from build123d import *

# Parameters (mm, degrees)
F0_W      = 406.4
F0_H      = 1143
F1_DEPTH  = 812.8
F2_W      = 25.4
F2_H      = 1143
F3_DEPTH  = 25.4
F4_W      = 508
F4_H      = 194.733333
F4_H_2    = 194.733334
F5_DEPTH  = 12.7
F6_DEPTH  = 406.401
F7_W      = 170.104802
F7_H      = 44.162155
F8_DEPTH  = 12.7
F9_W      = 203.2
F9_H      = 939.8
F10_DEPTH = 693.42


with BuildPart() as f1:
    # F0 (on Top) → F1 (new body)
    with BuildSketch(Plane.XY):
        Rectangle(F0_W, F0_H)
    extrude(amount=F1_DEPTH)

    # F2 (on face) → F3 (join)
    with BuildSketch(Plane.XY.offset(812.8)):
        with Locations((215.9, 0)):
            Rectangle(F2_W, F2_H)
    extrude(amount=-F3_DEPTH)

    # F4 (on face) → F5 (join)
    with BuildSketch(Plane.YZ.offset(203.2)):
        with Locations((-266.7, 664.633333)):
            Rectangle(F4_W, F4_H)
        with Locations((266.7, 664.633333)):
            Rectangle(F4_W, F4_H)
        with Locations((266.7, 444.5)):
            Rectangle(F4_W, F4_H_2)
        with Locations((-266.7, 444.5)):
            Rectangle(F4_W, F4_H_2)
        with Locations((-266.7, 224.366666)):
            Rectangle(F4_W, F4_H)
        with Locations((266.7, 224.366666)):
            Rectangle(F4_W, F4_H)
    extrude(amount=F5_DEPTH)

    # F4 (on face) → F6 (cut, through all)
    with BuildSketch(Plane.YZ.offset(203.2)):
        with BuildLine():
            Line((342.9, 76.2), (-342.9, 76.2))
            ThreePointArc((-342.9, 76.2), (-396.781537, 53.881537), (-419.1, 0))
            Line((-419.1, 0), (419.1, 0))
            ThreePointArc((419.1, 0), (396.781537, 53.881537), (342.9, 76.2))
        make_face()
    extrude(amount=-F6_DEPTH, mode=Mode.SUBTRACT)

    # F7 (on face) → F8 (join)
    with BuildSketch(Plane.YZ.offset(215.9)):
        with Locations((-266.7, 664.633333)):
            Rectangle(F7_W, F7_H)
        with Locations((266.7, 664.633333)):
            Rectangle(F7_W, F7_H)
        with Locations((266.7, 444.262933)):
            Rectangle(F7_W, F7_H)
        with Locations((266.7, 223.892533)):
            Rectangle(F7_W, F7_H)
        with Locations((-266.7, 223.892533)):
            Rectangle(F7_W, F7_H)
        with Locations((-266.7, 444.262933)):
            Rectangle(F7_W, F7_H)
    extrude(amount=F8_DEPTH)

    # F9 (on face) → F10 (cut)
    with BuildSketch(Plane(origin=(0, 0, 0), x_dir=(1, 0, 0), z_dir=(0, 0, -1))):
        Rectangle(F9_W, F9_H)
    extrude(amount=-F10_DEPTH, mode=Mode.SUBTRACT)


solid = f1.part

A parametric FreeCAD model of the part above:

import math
import FreeCAD as App
import Part
import Sketcher
Q = App.Units.Quantity

doc = App.newDocument("Part")
body = doc.addObject("PartDesign::Body", "Body")

sketch1 = doc.addObject("Sketcher::SketchObject", "Sketch")
body.addObject(sketch1)
sketch1.AttachmentSupport = (doc.XY_Plane, [""])
sketch1.MapMode = "FlatFace"
sketch1.addGeometry(Part.LineSegment(App.Vector(-203, 572, 0), App.Vector(-203, -572, 0)), False)
sketch1.addGeometry(Part.LineSegment(App.Vector(-203, -572, 0), App.Vector(203, -572, 0)), False)
sketch1.addGeometry(Part.LineSegment(App.Vector(203, -572, 0), App.Vector(203, 572, 0)), False)
sketch1.addGeometry(Part.LineSegment(App.Vector(203, 572, 0), App.Vector(-203, 572, 0)), False)
sketch1.addConstraint(Sketcher.Constraint("Coincident", 0, 2, 1, 1))
sketch1.addConstraint(Sketcher.Constraint("Coincident", 1, 2, 2, 1))
sketch1.addConstraint(Sketcher.Constraint("Coincident", 2, 2, 3, 1))
sketch1.addConstraint(Sketcher.Constraint("Coincident", 3, 2, 0, 1))
sketch1.addConstraint(Sketcher.Constraint("Vertical", 0))
sketch1.addConstraint(Sketcher.Constraint("Horizontal", 1))
sketch1.addConstraint(Sketcher.Constraint("Vertical", 2))
sketch1.addConstraint(Sketcher.Constraint("Horizontal", 3))
sketch1.addConstraint(Sketcher.Constraint("Symmetric", 0, 2, 2, 2, -1, 1))
sketch1.addConstraint(Sketcher.Constraint("DistanceX", 1, 1, 1, 2, Q("16 in")))
sketch1.addConstraint(Sketcher.Constraint("DistanceY", 0, 2, 0, 1, Q("45 in")))
pad1 = doc.addObject("PartDesign::Pad", "Pad")
body.addObject(pad1)
pad1.Profile = sketch1
pad1.Length = Q("32 in")

sketch2 = doc.addObject("Sketcher::SketchObject", "Sketch001")
body.addObject(sketch2)
sketch2.AttachmentSupport = (doc.XY_Plane, [""])
sketch2.MapMode = "FlatFace"
sketch2.AttachmentOffset = App.Placement(App.Vector(0, 0, 32 * 25.4), App.Rotation())
sketch2.addGeometry(Part.LineSegment(App.Vector(203, 572, 0), App.Vector(203, -572, 0)), False)
sketch2.addGeometry(Part.LineSegment(App.Vector(203, -572, 0), App.Vector(229, -572, 0)), False)
sketch2.addGeometry(Part.LineSegment(App.Vector(229, -572, 0), App.Vector(229, 572, 0)), False)
sketch2.addGeometry(Part.LineSegment(App.Vector(229, 572, 0), App.Vector(203, 572, 0)), False)
sketch2.addConstraint(Sketcher.Constraint("Coincident", 0, 2, 1, 1))
sketch2.addConstraint(Sketcher.Constraint("Coincident", 1, 2, 2, 1))
sketch2.addConstraint(Sketcher.Constraint("Coincident", 2, 2, 3, 1))
sketch2.addConstraint(Sketcher.Constraint("Coincident", 3, 2, 0, 1))
sketch2.addConstraint(Sketcher.Constraint("Vertical", 0))
sketch2.addConstraint(Sketcher.Constraint("Horizontal", 1))
sketch2.addConstraint(Sketcher.Constraint("Vertical", 2))
sketch2.addConstraint(Sketcher.Constraint("Horizontal", 3))
sketch2.addConstraint(Sketcher.Constraint("DistanceX", 1, 1, 1, 2, Q("1 in")))
sketch2.addConstraint(Sketcher.Constraint("DistanceY", 0, 2, 0, 1, Q("45 in")))
sketch2.addConstraint(Sketcher.Constraint("DistanceX", -1, 1, 0, 2, Q("8 in")))
sketch2.addConstraint(Sketcher.Constraint("DistanceY", 0, 2, -1, 1, Q("22.5 in")))
pad2 = doc.addObject("PartDesign::Pad", "Pad001")
body.addObject(pad2)
pad2.Profile = sketch2
pad2.Length = Q("1 in")
pad2.Reversed = True

sketch3 = doc.addObject("Sketcher::SketchObject", "Sketch002")
body.addObject(sketch3)
sketch3.AttachmentSupport = (doc.YZ_Plane, [""])
sketch3.MapMode = "FlatFace"
sketch3.AttachmentOffset = App.Placement(App.Vector(0, 0, 8 * 25.4), App.Rotation())
sketch3.addGeometry(Part.LineSegment(App.Vector(-521, 762, 0), App.Vector(-521, 567, 0)), False)
sketch3.addGeometry(Part.LineSegment(App.Vector(-521, 567, 0), App.Vector(-13, 567, 0)), False)
sketch3.addGeometry(Part.LineSegment(App.Vector(-13, 567, 0), App.Vector(-13, 762, 0)), False)
sketch3.addGeometry(Part.LineSegment(App.Vector(-13, 762, 0), App.Vector(-521, 762, 0)), False)
sketch3.addGeometry(Part.LineSegment(App.Vector(13, 762, 0), App.Vector(13, 567, 0)), False)
sketch3.addGeometry(Part.LineSegment(App.Vector(13, 567, 0), App.Vector(521, 567, 0)), False)
sketch3.addGeometry(Part.LineSegment(App.Vector(521, 567, 0), App.Vector(521, 762, 0)), False)
sketch3.addGeometry(Part.LineSegment(App.Vector(521, 762, 0), App.Vector(13, 762, 0)), False)
sketch3.addGeometry(Part.LineSegment(App.Vector(13, 542, 0), App.Vector(13, 347, 0)), False)
sketch3.addGeometry(Part.LineSegment(App.Vector(13, 347, 0), App.Vector(521, 347, 0)), False)
sketch3.addGeometry(Part.LineSegment(App.Vector(521, 347, 0), App.Vector(521, 542, 0)), False)
sketch3.addGeometry(Part.LineSegment(App.Vector(521, 542, 0), App.Vector(13, 542, 0)), False)
sketch3.addGeometry(Part.LineSegment(App.Vector(-521, 542, 0), App.Vector(-521, 347, 0)), False)
sketch3.addGeometry(Part.LineSegment(App.Vector(-521, 347, 0), App.Vector(-13, 347, 0)), False)
sketch3.addGeometry(Part.LineSegment(App.Vector(-13, 347, 0), App.Vector(-13, 542, 0)), False)
sketch3.addGeometry(Part.LineSegment(App.Vector(-13, 542, 0), App.Vector(-521, 542, 0)), False)
sketch3.addGeometry(Part.LineSegment(App.Vector(-521, 322, 0), App.Vector(-521, 127, 0)), False)
sketch3.addGeometry(Part.LineSegment(App.Vector(-521, 127, 0), App.Vector(-13, 127, 0)), False)
sketch3.addGeometry(Part.LineSegment(App.Vector(-13, 127, 0), App.Vector(-13, 322, 0)), False)
sketch3.addGeometry(Part.LineSegment(App.Vector(-13, 322, 0), App.Vector(-521, 322, 0)), False)
sketch3.addGeometry(Part.LineSegment(App.Vector(13, 322, 0), App.Vector(13, 127, 0)), False)
sketch3.addGeometry(Part.LineSegment(App.Vector(13, 127, 0), App.Vector(521, 127, 0)), False)
sketch3.addGeometry(Part.LineSegment(App.Vector(521, 127, 0), App.Vector(521, 322, 0)), False)
sketch3.addGeometry(Part.LineSegment(App.Vector(521, 322, 0), App.Vector(13, 322, 0)), False)
sketch3.addConstraint(Sketcher.Constraint("Coincident", 0, 2, 1, 1))
sketch3.addConstraint(Sketcher.Constraint("Coincident", 1, 2, 2, 1))
sketch3.addConstraint(Sketcher.Constraint("Coincident", 2, 2, 3, 1))
sketch3.addConstraint(Sketcher.Constraint("Coincident", 3, 2, 0, 1))
sketch3.addConstraint(Sketcher.Constraint("Coincident", 4, 2, 5, 1))
sketch3.addConstraint(Sketcher.Constraint("Coincident", 5, 2, 6, 1))
sketch3.addConstraint(Sketcher.Constraint("Coincident", 6, 2, 7, 1))
sketch3.addConstraint(Sketcher.Constraint("Coincident", 7, 2, 4, 1))
sketch3.addConstraint(Sketcher.Constraint("Coincident", 8, 2, 9, 1))
sketch3.addConstraint(Sketcher.Constraint("Coincident", 9, 2, 10, 1))
sketch3.addConstraint(Sketcher.Constraint("Coincident", 10, 2, 11, 1))
sketch3.addConstraint(Sketcher.Constraint("Coincident", 11, 2, 8, 1))
sketch3.addConstraint(Sketcher.Constraint("Coincident", 12, 2, 13, 1))
sketch3.addConstraint(Sketcher.Constraint("Coincident", 13, 2, 14, 1))
sketch3.addConstraint(Sketcher.Constraint("Coincident", 14, 2, 15, 1))
sketch3.addConstraint(Sketcher.Constraint("Coincident", 15, 2, 12, 1))
sketch3.addConstraint(Sketcher.Constraint("Coincident", 16, 2, 17, 1))
sketch3.addConstraint(Sketcher.Constraint("Coincident", 17, 2, 18, 1))
sketch3.addConstraint(Sketcher.Constraint("Coincident", 18, 2, 19, 1))
sketch3.addConstraint(Sketcher.Constraint("Coincident", 19, 2, 16, 1))
sketch3.addConstraint(Sketcher.Constraint("Coincident", 20, 2, 21, 1))
sketch3.addConstraint(Sketcher.Constraint("Coincident", 21, 2, 22, 1))
sketch3.addConstraint(Sketcher.Constraint("Coincident", 22, 2, 23, 1))
sketch3.addConstraint(Sketcher.Constraint("Coincident", 23, 2, 20, 1))
sketch3.addConstraint(Sketcher.Constraint("Vertical", 0))
sketch3.addConstraint(Sketcher.Constraint("Horizontal", 1))
sketch3.addConstraint(Sketcher.Constraint("Vertical", 2))
sketch3.addConstraint(Sketcher.Constraint("Horizontal", 3))
sketch3.addConstraint(Sketcher.Constraint("Vertical", 4))
sketch3.addConstraint(Sketcher.Constraint("Horizontal", 5))
sketch3.addConstraint(Sketcher.Constraint("Vertical", 6))
sketch3.addConstraint(Sketcher.Constraint("Horizontal", 7))
sketch3.addConstraint(Sketcher.Constraint("Vertical", 8))
sketch3.addConstraint(Sketcher.Constraint("Horizontal", 9))
sketch3.addConstraint(Sketcher.Constraint("Vertical", 10))
sketch3.addConstraint(Sketcher.Constraint("Horizontal", 11))
sketch3.addConstraint(Sketcher.Constraint("Vertical", 12))
sketch3.addConstraint(Sketcher.Constraint("Horizontal", 13))
sketch3.addConstraint(Sketcher.Constraint("Vertical", 14))
sketch3.addConstraint(Sketcher.Constraint("Horizontal", 15))
sketch3.addConstraint(Sketcher.Constraint("Vertical", 16))
sketch3.addConstraint(Sketcher.Constraint("Horizontal", 17))
sketch3.addConstraint(Sketcher.Constraint("Vertical", 18))
sketch3.addConstraint(Sketcher.Constraint("Horizontal", 19))
sketch3.addConstraint(Sketcher.Constraint("Vertical", 20))
sketch3.addConstraint(Sketcher.Constraint("Horizontal", 21))
sketch3.addConstraint(Sketcher.Constraint("Vertical", 22))
sketch3.addConstraint(Sketcher.Constraint("Horizontal", 23))
sketch3.addConstraint(Sketcher.Constraint("Symmetric", 1, 2, 4, 2, -2))
sketch3.addConstraint(Sketcher.Constraint("Symmetric", 3, 2, 6, 2, -2))
sketch3.addConstraint(Sketcher.Constraint("Symmetric", 9, 2, 12, 2, -2))
sketch3.addConstraint(Sketcher.Constraint("Symmetric", 11, 2, 14, 2, -2))
sketch3.addConstraint(Sketcher.Constraint("Symmetric", 17, 2, 20, 2, -2))
sketch3.addConstraint(Sketcher.Constraint("Symmetric", 19, 2, 22, 2, -2))
sketch3.addConstraint(Sketcher.Constraint("Vertical", 7, 2, 8, 2))
sketch3.addConstraint(Sketcher.Constraint("Vertical", 6, 2, 9, 2))
sketch3.addConstraint(Sketcher.Constraint("Vertical", 15, 2, 16, 2))
sketch3.addConstraint(Sketcher.Constraint("Vertical", 14, 2, 17, 2))
sketch3.addConstraint(Sketcher.Constraint("Equal", 6, 8))
sketch3.addConstraint(Sketcher.Constraint("Equal", 14, 16))
sketch3.addConstraint(Sketcher.Constraint("DistanceX", 1, 1, 1, 2, Q("20 in")))
sketch3.addConstraint(Sketcher.Constraint("DistanceY", -1, 1, 2, 2, Q("30 in")))
sketch3.addConstraint(Sketcher.Constraint("DistanceY", -1, 1, 16, 2, Q("5 in")))
sketch3.addConstraint(Sketcher.Constraint("DistanceX", 1, 2, 4, 2, Q("1 in")))
sketch3.addConstraint(Sketcher.Constraint("DistanceY", 10, 2, 5, 2, Q("1 in")))
sketch3.addConstraint(Sketcher.Constraint("DistanceY", 18, 2, 13, 2, Q("1 in")))
pad3 = doc.addObject("PartDesign::Pad", "Pad002")
body.addObject(pad3)
pad3.Profile = sketch3
pad3.Length = Q("0.5 in")

sketch4 = doc.addObject("Sketcher::SketchObject", "Sketch003")
body.addObject(sketch4)
sketch4.AttachmentSupport = (doc.YZ_Plane, [""])
sketch4.MapMode = "FlatFace"
sketch4.AttachmentOffset = App.Placement(App.Vector(0, 0, 8 * 25.4), App.Rotation())
sketch4.addGeometry(Part.LineSegment(App.Vector(343, 76, 0), App.Vector(-343, 76, 0)), False)
sketch4.addGeometry(Part.ArcOfCircle(Part.Circle(App.Vector(-343, 0, 0), App.Vector(0, 0, 1), 76), math.radians(90), math.radians(180)), False)
sketch4.addGeometry(Part.LineSegment(App.Vector(-419, 0, 0), App.Vector(419, 0, 0)), False)
sketch4.addGeometry(Part.ArcOfCircle(Part.Circle(App.Vector(343, 0, 0), App.Vector(0, 0, 1), 76), math.radians(0), math.radians(90)), False)
sketch4.addConstraint(Sketcher.Constraint("Tangent", 0, 2, 1, 1))
sketch4.addConstraint(Sketcher.Constraint("Coincident", 1, 2, 2, 1))
sketch4.addConstraint(Sketcher.Constraint("Coincident", 2, 2, 3, 1))
sketch4.addConstraint(Sketcher.Constraint("Tangent", 3, 2, 0, 1))
sketch4.addConstraint(Sketcher.Constraint("Horizontal", 0))
sketch4.addConstraint(Sketcher.Constraint("Horizontal", 2))
sketch4.addConstraint(Sketcher.Constraint("Equal", 1, 3))
sketch4.addConstraint(Sketcher.Constraint("Symmetric", 1, 3, 3, 3, -1, 1))
sketch4.addConstraint(Sketcher.Constraint("PointOnObject", 1, 2, -1))
sketch4.addConstraint(Sketcher.Constraint("Radius", 1, Q("3 in")))
sketch4.addConstraint(Sketcher.Constraint("DistanceX", 0, 2, 0, 1, Q("27 in")))
pocket1 = doc.addObject("PartDesign::Pocket", "Pocket")
body.addObject(pocket1)
pocket1.Profile = sketch4
pocket1.Type = "ThroughAll"

sketch5 = doc.addObject("Sketcher::SketchObject", "Sketch004")
body.addObject(sketch5)
sketch5.AttachmentSupport = (doc.YZ_Plane, [""])
sketch5.MapMode = "FlatFace"
sketch5.AttachmentOffset = App.Placement(App.Vector(0, 0, 8.5 * 25.4), App.Rotation())
sketch5.addGeometry(Part.LineSegment(App.Vector(-352, 687, 0), App.Vector(-352, 643, 0)), False)
sketch5.addGeometry(Part.LineSegment(App.Vector(-352, 643, 0), App.Vector(-182, 643, 0)), False)
sketch5.addGeometry(Part.LineSegment(App.Vector(-182, 643, 0), App.Vector(-182, 687, 0)), False)
sketch5.addGeometry(Part.LineSegment(App.Vector(-182, 687, 0), App.Vector(-352, 687, 0)), False)
sketch5.addGeometry(Part.LineSegment(App.Vector(182, 687, 0), App.Vector(182, 643, 0)), False)
sketch5.addGeometry(Part.LineSegment(App.Vector(182, 643, 0), App.Vector(352, 643, 0)), False)
sketch5.addGeometry(Part.LineSegment(App.Vector(352, 643, 0), App.Vector(352, 687, 0)), False)
sketch5.addGeometry(Part.LineSegment(App.Vector(352, 687, 0), App.Vector(182, 687, 0)), False)
sketch5.addGeometry(Part.LineSegment(App.Vector(182, 466, 0), App.Vector(182, 422, 0)), False)
sketch5.addGeometry(Part.LineSegment(App.Vector(182, 422, 0), App.Vector(352, 422, 0)), False)
sketch5.addGeometry(Part.LineSegment(App.Vector(352, 422, 0), App.Vector(352, 466, 0)), False)
sketch5.addGeometry(Part.LineSegment(App.Vector(352, 466, 0), App.Vector(182, 466, 0)), False)
sketch5.addGeometry(Part.LineSegment(App.Vector(182, 246, 0), App.Vector(182, 202, 0)), False)
sketch5.addGeometry(Part.LineSegment(App.Vector(182, 202, 0), App.Vector(352, 202, 0)), False)
sketch5.addGeometry(Part.LineSegment(App.Vector(352, 202, 0), App.Vector(352, 246, 0)), False)
sketch5.addGeometry(Part.LineSegment(App.Vector(352, 246, 0), App.Vector(182, 246, 0)), False)
sketch5.addGeometry(Part.LineSegment(App.Vector(-352, 246, 0), App.Vector(-352, 202, 0)), False)
sketch5.addGeometry(Part.LineSegment(App.Vector(-352, 202, 0), App.Vector(-182, 202, 0)), False)
sketch5.addGeometry(Part.LineSegment(App.Vector(-182, 202, 0), App.Vector(-182, 246, 0)), False)
sketch5.addGeometry(Part.LineSegment(App.Vector(-182, 246, 0), App.Vector(-352, 246, 0)), False)
sketch5.addGeometry(Part.LineSegment(App.Vector(-352, 466, 0), App.Vector(-352, 422, 0)), False)
sketch5.addGeometry(Part.LineSegment(App.Vector(-352, 422, 0), App.Vector(-182, 422, 0)), False)
sketch5.addGeometry(Part.LineSegment(App.Vector(-182, 422, 0), App.Vector(-182, 466, 0)), False)
sketch5.addGeometry(Part.LineSegment(App.Vector(-182, 466, 0), App.Vector(-352, 466, 0)), False)
sketch5.addConstraint(Sketcher.Constraint("Coincident", 0, 2, 1, 1))
sketch5.addConstraint(Sketcher.Constraint("Coincident", 1, 2, 2, 1))
sketch5.addConstraint(Sketcher.Constraint("Coincident", 2, 2, 3, 1))
sketch5.addConstraint(Sketcher.Constraint("Coincident", 3, 2, 0, 1))
sketch5.addConstraint(Sketcher.Constraint("Coincident", 4, 2, 5, 1))
sketch5.addConstraint(Sketcher.Constraint("Coincident", 5, 2, 6, 1))
sketch5.addConstraint(Sketcher.Constraint("Coincident", 6, 2, 7, 1))
sketch5.addConstraint(Sketcher.Constraint("Coincident", 7, 2, 4, 1))
sketch5.addConstraint(Sketcher.Constraint("Coincident", 8, 2, 9, 1))
sketch5.addConstraint(Sketcher.Constraint("Coincident", 9, 2, 10, 1))
sketch5.addConstraint(Sketcher.Constraint("Coincident", 10, 2, 11, 1))
sketch5.addConstraint(Sketcher.Constraint("Coincident", 11, 2, 8, 1))
sketch5.addConstraint(Sketcher.Constraint("Coincident", 12, 2, 13, 1))
sketch5.addConstraint(Sketcher.Constraint("Coincident", 13, 2, 14, 1))
sketch5.addConstraint(Sketcher.Constraint("Coincident", 14, 2, 15, 1))
sketch5.addConstraint(Sketcher.Constraint("Coincident", 15, 2, 12, 1))
sketch5.addConstraint(Sketcher.Constraint("Coincident", 16, 2, 17, 1))
sketch5.addConstraint(Sketcher.Constraint("Coincident", 17, 2, 18, 1))
sketch5.addConstraint(Sketcher.Constraint("Coincident", 18, 2, 19, 1))
sketch5.addConstraint(Sketcher.Constraint("Coincident", 19, 2, 16, 1))
sketch5.addConstraint(Sketcher.Constraint("Coincident", 20, 2, 21, 1))
sketch5.addConstraint(Sketcher.Constraint("Coincident", 21, 2, 22, 1))
sketch5.addConstraint(Sketcher.Constraint("Coincident", 22, 2, 23, 1))
sketch5.addConstraint(Sketcher.Constraint("Coincident", 23, 2, 20, 1))
sketch5.addConstraint(Sketcher.Constraint("Vertical", 0))
sketch5.addConstraint(Sketcher.Constraint("Horizontal", 1))
sketch5.addConstraint(Sketcher.Constraint("Vertical", 2))
sketch5.addConstraint(Sketcher.Constraint("Horizontal", 3))
sketch5.addConstraint(Sketcher.Constraint("Vertical", 4))
sketch5.addConstraint(Sketcher.Constraint("Horizontal", 5))
sketch5.addConstraint(Sketcher.Constraint("Vertical", 6))
sketch5.addConstraint(Sketcher.Constraint("Horizontal", 7))
sketch5.addConstraint(Sketcher.Constraint("Vertical", 8))
sketch5.addConstraint(Sketcher.Constraint("Horizontal", 9))
sketch5.addConstraint(Sketcher.Constraint("Vertical", 10))
sketch5.addConstraint(Sketcher.Constraint("Horizontal", 11))
sketch5.addConstraint(Sketcher.Constraint("Vertical", 12))
sketch5.addConstraint(Sketcher.Constraint("Horizontal", 13))
sketch5.addConstraint(Sketcher.Constraint("Vertical", 14))
sketch5.addConstraint(Sketcher.Constraint("Horizontal", 15))
sketch5.addConstraint(Sketcher.Constraint("Vertical", 16))
sketch5.addConstraint(Sketcher.Constraint("Horizontal", 17))
sketch5.addConstraint(Sketcher.Constraint("Vertical", 18))
sketch5.addConstraint(Sketcher.Constraint("Horizontal", 19))
sketch5.addConstraint(Sketcher.Constraint("Vertical", 20))
sketch5.addConstraint(Sketcher.Constraint("Horizontal", 21))
sketch5.addConstraint(Sketcher.Constraint("Vertical", 22))
sketch5.addConstraint(Sketcher.Constraint("Horizontal", 23))
sketch5.addConstraint(Sketcher.Constraint("Symmetric", 1, 2, 4, 2, -2))
sketch5.addConstraint(Sketcher.Constraint("Symmetric", 3, 2, 6, 2, -2))
sketch5.addConstraint(Sketcher.Constraint("Symmetric", 13, 2, 16, 2, -2))
sketch5.addConstraint(Sketcher.Constraint("Symmetric", 15, 2, 18, 2, -2))
sketch5.addConstraint(Sketcher.Constraint("Symmetric", 9, 2, 20, 2, -2))
sketch5.addConstraint(Sketcher.Constraint("Symmetric", 11, 2, 22, 2, -2))
sketch5.addConstraint(Sketcher.Constraint("Vertical", 7, 2, 8, 2))
sketch5.addConstraint(Sketcher.Constraint("Vertical", 6, 2, 9, 2))
sketch5.addConstraint(Sketcher.Constraint("Vertical", 11, 2, 12, 2))
sketch5.addConstraint(Sketcher.Constraint("Vertical", 10, 2, 13, 2))
sketch5.addConstraint(Sketcher.Constraint("Equal", 6, 8))
sketch5.addConstraint(Sketcher.Constraint("Equal", 10, 12))
sketch5.addConstraint(Sketcher.Constraint("DistanceX", 0, 2, 4, 2, Q("21 in")))
sketch5.addConstraint(Sketcher.Constraint("DistanceY", 8, 2, 4, 2, Q("8.676 in")))
sketch5.addConstraint(Sketcher.Constraint("DistanceY", 12, 2, 8, 2, Q("8.676 in")))
sketch5.addConstraint(Sketcher.Constraint("DistanceX", 1, 1, 1, 2, Q("170.104802 mm")))
sketch5.addConstraint(Sketcher.Constraint("DistanceY", 0, 2, 0, 1, Q("44.162155 mm")))
sketch5.addConstraint(Sketcher.Constraint("DistanceY", -1, 1, 2, 2, Q("686.71441 mm")))
pad4 = doc.addObject("PartDesign::Pad", "Pad003")
body.addObject(pad4)
pad4.Profile = sketch5
pad4.Length = Q("0.5 in")

sketch6 = doc.addObject("Sketcher::SketchObject", "Sketch005")
body.addObject(sketch6)
sketch6.AttachmentSupport = (doc.XY_Plane, [""])
sketch6.MapMode = "FlatFace"
sketch6.addGeometry(Part.LineSegment(App.Vector(-102, -470, 0), App.Vector(-102, 470, 0)), False)
sketch6.addGeometry(Part.LineSegment(App.Vector(-102, 470, 0), App.Vector(102, 470, 0)), False)
sketch6.addGeometry(Part.LineSegment(App.Vector(102, 470, 0), App.Vector(102, -470, 0)), False)
sketch6.addGeometry(Part.LineSegment(App.Vector(102, -470, 0), App.Vector(-102, -470, 0)), False)
sketch6.addConstraint(Sketcher.Constraint("Coincident", 0, 2, 1, 1))
sketch6.addConstraint(Sketcher.Constraint("Coincident", 1, 2, 2, 1))
sketch6.addConstraint(Sketcher.Constraint("Coincident", 2, 2, 3, 1))
sketch6.addConstraint(Sketcher.Constraint("Coincident", 3, 2, 0, 1))
sketch6.addConstraint(Sketcher.Constraint("Vertical", 0))
sketch6.addConstraint(Sketcher.Constraint("Horizontal", 1))
sketch6.addConstraint(Sketcher.Constraint("Vertical", 2))
sketch6.addConstraint(Sketcher.Constraint("Horizontal", 3))
sketch6.addConstraint(Sketcher.Constraint("Symmetric", 0, 2, 2, 2, -1, 1))
sketch6.addConstraint(Sketcher.Constraint("DistanceX", 1, 1, 1, 2, Q("8 in")))
sketch6.addConstraint(Sketcher.Constraint("DistanceY", 0, 1, 0, 2, Q("37 in")))
pocket2 = doc.addObject("PartDesign::Pocket", "Pocket001")
body.addObject(pocket2)
pocket2.Profile = sketch6
pocket2.Length = Q("27.3 in")
pocket2.Reversed = True

doc.recompute()
